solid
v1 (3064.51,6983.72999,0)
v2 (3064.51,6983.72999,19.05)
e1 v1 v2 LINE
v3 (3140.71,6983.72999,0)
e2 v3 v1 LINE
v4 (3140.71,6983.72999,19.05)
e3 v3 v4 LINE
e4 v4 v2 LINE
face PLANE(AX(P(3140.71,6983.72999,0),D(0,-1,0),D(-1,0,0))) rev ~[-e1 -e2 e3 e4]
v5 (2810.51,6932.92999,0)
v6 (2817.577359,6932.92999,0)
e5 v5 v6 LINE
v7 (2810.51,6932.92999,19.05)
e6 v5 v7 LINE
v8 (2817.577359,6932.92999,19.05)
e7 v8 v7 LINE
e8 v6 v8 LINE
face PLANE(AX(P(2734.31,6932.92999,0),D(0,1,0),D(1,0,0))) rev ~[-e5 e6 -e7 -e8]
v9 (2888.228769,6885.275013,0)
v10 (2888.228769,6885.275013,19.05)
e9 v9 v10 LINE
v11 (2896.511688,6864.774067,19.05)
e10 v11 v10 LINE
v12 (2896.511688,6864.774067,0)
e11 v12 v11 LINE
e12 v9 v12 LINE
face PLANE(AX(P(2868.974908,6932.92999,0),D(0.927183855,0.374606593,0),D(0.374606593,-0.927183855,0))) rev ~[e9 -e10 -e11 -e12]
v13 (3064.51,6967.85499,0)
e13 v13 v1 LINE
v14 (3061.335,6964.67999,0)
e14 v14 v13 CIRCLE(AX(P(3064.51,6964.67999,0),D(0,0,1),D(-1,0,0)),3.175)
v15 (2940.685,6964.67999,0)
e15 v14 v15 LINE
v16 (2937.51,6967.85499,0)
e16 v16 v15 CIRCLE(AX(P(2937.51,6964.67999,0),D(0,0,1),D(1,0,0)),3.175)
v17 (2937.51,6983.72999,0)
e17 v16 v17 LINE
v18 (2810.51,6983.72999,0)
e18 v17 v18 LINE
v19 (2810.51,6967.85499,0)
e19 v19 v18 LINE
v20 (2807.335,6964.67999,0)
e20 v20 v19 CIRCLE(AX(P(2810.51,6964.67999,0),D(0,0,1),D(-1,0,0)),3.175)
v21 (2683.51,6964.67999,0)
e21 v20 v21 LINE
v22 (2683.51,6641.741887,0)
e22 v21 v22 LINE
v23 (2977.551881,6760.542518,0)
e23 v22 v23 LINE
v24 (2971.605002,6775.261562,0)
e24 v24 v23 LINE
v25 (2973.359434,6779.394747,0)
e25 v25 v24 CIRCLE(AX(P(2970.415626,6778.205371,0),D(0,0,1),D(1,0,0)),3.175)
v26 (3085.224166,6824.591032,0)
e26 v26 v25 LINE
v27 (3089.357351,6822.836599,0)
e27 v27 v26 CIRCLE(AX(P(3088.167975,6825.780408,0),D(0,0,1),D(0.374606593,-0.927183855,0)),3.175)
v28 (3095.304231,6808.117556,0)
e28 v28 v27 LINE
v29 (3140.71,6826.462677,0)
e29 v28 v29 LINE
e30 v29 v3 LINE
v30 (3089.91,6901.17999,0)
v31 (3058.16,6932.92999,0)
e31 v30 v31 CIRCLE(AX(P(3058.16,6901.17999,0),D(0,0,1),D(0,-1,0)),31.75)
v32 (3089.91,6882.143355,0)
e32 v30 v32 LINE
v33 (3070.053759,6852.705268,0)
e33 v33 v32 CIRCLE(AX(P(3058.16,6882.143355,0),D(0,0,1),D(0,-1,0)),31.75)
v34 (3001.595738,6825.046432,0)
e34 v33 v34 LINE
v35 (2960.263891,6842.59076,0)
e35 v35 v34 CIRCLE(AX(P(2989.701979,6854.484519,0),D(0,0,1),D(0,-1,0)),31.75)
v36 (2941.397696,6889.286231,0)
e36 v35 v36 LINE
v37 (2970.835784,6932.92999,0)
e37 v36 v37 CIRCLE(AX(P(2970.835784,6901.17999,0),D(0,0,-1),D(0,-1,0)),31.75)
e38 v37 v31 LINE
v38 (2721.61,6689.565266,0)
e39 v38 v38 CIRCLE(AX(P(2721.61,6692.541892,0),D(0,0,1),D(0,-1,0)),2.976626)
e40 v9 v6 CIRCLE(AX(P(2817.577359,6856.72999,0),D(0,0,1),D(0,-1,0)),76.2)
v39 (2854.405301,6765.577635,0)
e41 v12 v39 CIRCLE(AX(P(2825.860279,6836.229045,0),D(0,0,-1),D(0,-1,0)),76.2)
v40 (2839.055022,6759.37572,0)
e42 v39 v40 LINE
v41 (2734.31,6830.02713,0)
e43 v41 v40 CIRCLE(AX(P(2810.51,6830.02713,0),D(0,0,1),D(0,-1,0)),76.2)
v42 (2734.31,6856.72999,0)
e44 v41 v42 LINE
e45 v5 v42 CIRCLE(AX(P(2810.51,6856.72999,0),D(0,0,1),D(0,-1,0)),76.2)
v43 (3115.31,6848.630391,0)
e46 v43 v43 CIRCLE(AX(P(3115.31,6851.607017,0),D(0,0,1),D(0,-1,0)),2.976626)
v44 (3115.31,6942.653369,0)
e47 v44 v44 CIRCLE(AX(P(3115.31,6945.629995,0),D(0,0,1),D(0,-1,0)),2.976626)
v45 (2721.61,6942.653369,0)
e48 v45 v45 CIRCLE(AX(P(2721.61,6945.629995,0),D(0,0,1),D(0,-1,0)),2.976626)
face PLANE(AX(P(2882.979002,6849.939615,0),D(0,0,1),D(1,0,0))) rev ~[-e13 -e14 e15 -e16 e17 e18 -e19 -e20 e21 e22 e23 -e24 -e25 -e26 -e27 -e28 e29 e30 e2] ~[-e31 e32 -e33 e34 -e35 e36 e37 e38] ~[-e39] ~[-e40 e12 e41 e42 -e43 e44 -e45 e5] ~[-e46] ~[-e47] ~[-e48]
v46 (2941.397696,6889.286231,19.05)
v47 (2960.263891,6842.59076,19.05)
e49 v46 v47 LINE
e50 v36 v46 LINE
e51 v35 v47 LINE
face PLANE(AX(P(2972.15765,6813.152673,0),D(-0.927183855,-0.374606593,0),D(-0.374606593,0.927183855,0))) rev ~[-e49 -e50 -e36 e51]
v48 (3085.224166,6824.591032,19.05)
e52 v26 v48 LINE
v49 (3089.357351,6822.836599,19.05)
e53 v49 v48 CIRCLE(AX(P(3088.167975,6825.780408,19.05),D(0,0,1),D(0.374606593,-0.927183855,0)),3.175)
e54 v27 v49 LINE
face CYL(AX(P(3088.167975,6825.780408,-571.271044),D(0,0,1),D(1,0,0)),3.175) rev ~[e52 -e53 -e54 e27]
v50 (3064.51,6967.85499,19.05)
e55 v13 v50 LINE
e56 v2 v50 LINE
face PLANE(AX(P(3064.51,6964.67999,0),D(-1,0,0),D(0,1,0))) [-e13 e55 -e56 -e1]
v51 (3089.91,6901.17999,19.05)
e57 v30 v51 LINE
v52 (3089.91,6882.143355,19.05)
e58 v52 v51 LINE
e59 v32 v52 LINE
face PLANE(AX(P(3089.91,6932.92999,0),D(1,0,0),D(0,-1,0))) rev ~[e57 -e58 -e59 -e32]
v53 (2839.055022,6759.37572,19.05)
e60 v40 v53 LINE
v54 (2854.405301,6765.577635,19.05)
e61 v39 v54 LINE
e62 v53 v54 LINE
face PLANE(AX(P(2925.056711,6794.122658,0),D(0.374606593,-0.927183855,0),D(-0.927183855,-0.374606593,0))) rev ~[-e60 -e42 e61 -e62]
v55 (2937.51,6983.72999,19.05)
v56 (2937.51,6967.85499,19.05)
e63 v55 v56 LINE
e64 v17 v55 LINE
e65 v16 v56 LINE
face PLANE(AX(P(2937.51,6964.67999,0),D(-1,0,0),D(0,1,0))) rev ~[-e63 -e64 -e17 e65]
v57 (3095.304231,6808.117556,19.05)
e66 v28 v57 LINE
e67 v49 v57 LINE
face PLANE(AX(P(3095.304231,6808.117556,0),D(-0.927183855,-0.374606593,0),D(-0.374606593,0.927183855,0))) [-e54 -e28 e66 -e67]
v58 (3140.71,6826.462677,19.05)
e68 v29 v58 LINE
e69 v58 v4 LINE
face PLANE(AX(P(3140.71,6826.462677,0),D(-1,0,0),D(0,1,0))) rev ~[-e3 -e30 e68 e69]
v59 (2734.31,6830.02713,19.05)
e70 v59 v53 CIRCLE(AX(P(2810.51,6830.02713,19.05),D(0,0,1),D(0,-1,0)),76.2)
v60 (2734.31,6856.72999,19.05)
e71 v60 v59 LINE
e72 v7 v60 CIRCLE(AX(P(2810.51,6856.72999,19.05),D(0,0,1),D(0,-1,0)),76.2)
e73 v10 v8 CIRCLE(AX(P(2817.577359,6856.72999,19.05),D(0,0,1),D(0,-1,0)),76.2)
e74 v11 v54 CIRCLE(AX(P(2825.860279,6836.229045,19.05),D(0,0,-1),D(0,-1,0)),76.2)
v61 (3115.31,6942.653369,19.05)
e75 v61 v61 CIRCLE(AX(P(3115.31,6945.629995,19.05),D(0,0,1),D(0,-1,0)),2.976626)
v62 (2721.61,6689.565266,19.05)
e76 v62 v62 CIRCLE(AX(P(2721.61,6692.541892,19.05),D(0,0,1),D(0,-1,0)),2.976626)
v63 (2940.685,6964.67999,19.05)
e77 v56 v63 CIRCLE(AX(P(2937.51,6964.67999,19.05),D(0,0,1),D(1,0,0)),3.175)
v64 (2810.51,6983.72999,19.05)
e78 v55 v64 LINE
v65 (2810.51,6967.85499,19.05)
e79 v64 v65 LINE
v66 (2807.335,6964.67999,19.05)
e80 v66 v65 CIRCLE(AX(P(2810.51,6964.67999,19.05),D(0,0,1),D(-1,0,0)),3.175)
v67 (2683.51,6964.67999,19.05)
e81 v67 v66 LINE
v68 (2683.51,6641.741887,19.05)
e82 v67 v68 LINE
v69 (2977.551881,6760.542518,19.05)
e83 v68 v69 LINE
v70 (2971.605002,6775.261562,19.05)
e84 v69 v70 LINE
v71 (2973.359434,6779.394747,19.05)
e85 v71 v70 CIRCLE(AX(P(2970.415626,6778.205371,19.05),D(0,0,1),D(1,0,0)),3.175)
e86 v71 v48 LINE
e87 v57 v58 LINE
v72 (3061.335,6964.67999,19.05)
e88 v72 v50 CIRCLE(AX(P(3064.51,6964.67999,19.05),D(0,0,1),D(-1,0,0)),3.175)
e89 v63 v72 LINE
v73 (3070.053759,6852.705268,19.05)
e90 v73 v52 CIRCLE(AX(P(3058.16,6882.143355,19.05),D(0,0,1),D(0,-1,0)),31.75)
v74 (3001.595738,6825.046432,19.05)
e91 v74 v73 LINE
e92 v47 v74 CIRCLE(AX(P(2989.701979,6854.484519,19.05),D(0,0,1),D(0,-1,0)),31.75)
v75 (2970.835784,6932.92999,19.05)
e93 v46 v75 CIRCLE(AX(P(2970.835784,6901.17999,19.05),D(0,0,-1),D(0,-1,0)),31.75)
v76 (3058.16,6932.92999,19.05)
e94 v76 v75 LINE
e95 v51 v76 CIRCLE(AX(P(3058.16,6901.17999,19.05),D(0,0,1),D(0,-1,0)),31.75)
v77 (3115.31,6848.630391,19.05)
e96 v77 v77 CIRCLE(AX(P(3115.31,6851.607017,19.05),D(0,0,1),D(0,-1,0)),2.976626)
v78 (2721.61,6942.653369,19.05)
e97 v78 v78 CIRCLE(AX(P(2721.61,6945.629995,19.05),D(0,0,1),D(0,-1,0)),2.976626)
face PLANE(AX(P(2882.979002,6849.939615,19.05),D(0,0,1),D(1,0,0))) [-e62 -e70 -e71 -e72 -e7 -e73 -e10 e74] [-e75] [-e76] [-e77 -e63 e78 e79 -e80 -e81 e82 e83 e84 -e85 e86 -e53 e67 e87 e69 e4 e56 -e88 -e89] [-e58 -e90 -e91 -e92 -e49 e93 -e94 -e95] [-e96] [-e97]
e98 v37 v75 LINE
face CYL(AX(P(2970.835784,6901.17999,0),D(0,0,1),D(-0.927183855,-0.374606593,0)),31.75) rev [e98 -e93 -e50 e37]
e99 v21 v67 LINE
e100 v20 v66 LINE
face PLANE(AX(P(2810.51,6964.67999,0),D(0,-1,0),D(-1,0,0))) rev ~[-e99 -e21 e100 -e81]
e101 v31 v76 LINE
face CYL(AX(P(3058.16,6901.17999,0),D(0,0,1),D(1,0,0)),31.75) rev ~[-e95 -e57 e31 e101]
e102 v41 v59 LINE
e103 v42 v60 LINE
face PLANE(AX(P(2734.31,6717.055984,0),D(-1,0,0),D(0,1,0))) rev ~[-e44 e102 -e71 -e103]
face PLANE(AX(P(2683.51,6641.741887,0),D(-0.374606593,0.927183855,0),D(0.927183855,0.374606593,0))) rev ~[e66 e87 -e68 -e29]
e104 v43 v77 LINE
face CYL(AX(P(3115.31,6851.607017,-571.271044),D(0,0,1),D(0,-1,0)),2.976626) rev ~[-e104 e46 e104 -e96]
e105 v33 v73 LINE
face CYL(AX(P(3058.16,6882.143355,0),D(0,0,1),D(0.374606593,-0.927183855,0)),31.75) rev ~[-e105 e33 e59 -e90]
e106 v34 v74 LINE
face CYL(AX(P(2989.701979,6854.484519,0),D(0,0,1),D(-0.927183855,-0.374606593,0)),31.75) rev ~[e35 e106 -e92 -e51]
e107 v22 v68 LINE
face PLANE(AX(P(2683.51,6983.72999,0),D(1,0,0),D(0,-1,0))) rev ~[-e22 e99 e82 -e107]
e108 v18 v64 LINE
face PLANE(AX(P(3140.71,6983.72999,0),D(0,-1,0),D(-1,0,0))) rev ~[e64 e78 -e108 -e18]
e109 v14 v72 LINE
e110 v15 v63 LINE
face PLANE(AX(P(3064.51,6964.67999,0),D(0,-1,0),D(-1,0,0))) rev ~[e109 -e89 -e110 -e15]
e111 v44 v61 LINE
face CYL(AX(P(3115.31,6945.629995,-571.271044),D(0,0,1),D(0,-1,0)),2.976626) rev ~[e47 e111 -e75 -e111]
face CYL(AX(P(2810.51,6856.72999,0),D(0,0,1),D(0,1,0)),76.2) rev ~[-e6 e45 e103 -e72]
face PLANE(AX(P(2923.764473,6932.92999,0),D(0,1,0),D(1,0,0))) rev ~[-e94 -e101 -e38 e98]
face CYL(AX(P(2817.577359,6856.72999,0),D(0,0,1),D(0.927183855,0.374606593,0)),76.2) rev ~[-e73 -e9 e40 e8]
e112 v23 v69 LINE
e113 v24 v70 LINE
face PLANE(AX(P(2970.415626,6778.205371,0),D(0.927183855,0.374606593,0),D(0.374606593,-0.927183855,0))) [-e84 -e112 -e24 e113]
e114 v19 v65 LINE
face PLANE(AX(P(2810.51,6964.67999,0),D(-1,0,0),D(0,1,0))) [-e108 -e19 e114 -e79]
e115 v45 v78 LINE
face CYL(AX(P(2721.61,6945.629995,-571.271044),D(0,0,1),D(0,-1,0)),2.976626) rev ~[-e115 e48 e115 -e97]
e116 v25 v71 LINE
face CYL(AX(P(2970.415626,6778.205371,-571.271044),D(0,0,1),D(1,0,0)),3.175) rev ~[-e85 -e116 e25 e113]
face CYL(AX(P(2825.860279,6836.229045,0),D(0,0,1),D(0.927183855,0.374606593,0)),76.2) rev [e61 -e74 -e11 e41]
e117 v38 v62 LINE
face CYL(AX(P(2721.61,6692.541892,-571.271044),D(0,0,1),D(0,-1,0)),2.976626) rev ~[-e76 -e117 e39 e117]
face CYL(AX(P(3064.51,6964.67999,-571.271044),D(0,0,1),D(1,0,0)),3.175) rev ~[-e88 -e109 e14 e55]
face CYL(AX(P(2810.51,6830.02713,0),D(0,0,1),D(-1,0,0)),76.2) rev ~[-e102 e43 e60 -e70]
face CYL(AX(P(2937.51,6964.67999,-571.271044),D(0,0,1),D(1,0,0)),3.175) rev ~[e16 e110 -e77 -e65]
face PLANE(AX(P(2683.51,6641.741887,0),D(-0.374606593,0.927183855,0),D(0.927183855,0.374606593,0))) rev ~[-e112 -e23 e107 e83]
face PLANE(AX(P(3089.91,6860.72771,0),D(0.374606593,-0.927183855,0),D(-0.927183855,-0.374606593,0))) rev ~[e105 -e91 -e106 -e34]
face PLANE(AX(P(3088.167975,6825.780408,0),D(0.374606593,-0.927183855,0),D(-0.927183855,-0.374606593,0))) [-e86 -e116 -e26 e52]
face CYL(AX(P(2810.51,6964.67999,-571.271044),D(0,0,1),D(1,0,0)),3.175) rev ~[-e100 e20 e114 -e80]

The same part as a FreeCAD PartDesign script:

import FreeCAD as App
import Part
import Sketcher

V = App.Vector
Q = App.Units.Quantity


def edges_at(feature, points):
    """Names of the edges that pass closest to the given points."""
    edges = feature.Shape.Edges
    near = lambda p: min(range(len(edges)), key=lambda i: edges[i].distToShape(Part.Vertex(*p))[0])
    return sorted({f"Edge{near(p) + 1}" for p in points})


def add_polygon(sketch, points):
    """Adds a closed chain of lines whose ends are joined by coincident constraints."""
    first, n = sketch.GeometryCount, len(points)
    for a, b in zip(points, points[1:] + points[:1]):
        sketch.addGeometry(Part.LineSegment(App.Vector(*a, 0), App.Vector(*b, 0)), False)
    for i in range(n):
        sketch.addConstraint(Sketcher.Constraint("Coincident", first + i, 2, first + (i + 1) % n, 1))

doc = App.newDocument("Part")
body = doc.addObject("PartDesign::Body", "Body")

sketch1 = body.newObject("Sketcher::SketchObject", "Sketch")
sketch1.AttachmentSupport = (doc.getObject("XY_Plane"), [""])
sketch1.MapMode = "FlatFace"
add_polygon(sketch1, [(3140.71, 6983.72999), (2683.51, 6983.72999), (2683.51, 6641.741887), (3140.71, 6826.462677)])
sketch1.addConstraint([
    Sketcher.Constraint("Horizontal", 0),
    Sketcher.Constraint("Vertical", 1),
    Sketcher.Constraint("Vertical", 3),
    Sketcher.Constraint("DistanceX", 0, 2, 0, 1, Q("18 in")),
    Sketcher.Constraint("Angle", 2, Q("22 deg")),
    Sketcher.Constraint("DistanceX", -1, 1, 0, 2, Q("105.65 in")),
    Sketcher.Constraint("DistanceY", 1, 2, 1, 1, 341.988103),
    Sketcher.Constraint("DistanceY", -1, 1, 0, 2, 6983.72999),
])
pad1 = body.newObject("PartDesign::Pad", "Pad")
pad1.Profile = sketch1
pad1.Length = Q("0.75 in")

sketch2 = body.newObject("Sketcher::SketchObject", "Sketch001")
sketch2.AttachmentSupport = (doc.getObject("XY_Plane"), [""])
sketch2.MapMode = "FlatFace"
add_polygon(sketch2, [(2923.764473, 6932.92999), (3089.91, 6932.92999), (3089.91, 6860.72771), (2972.15765, 6813.152673)])
add_polygon(sketch2, [(2925.056711, 6794.122658), (2734.31, 6717.055984), (2734.31, 6932.92999), (2868.974908, 6932.92999)])
sketch2.addConstraint([
    Sketcher.Constraint("Horizontal", 0),
    Sketcher.Constraint("Vertical", 1),
    Sketcher.Constraint("Vertical", 5),
    Sketcher.Constraint("Horizontal", 6),
    Sketcher.Constraint("Perpendicular", 2, 3),
    Sketcher.Constraint("Perpendicular", 3, 4),
    Sketcher.Constraint("Perpendicular", 4, 7),
    Sketcher.Constraint("Horizontal", 3, 2, 5, 2),
    Sketcher.Constraint("Distance", 2, Q("5 in")),
    Sketcher.Constraint("Angle", 2, Q("-158 deg")),
    Sketcher.Constraint("DistanceX", 4, 2, 1, 2, Q("14 in")),
    Sketcher.Constraint("DistanceX", -1, 1, 0, 2, Q("121.65 in")),
    Sketcher.Constraint("Distance", 3, 129.183998),
    Sketcher.Constraint("Distance", 7, 149.708531),
    Sketcher.Constraint("DistanceX", 6, 1, 6, 2, 134.664908),
    Sketcher.Constraint("DistanceY", -1, 1, 0, 2, 6932.92999),
])
pocket1 = body.newObject("PartDesign::Pocket", "Pocket")
pocket1.Profile = sketch2
pocket1.Type = "ThroughAll"
pocket1.Reversed = True
doc.recompute()

fillet = body.newObject("PartDesign::Fillet", "Fillet")
fillet.Base = (pocket1, edges_at(pocket1, [
    (2925.057, 6794.123, 9.525),
    (2868.975, 6932.93, 9.525),
    (2734.31, 6932.93, 9.525),
    (2734.31, 6717.056, 9.525),
]))
fillet.Radius = Q("3 in")
doc.recompute()

fillet2 = body.newObject("PartDesign::Fillet", "Fillet001")
fillet2.Base = (fillet, edges_at(fillet, [
    (2972.158, 6813.153, 9.525),
    (3089.91, 6860.728, 9.525),
    (3089.91, 6932.93, 9.525),
    (2923.764, 6932.93, 9.525),
]))
fillet2.Radius = Q("1.25 in")

sketch3 = body.newObject("Sketcher::SketchObject", "Sketch002")
sketch3.AttachmentSupport = (doc.getObject("XY_Plane"), [""])
sketch3.MapMode = "FlatFace"
add_polygon(sketch3, [(2810.51, 6983.72999), (2810.51, 6964.67999), (2683.51, 6964.67999), (2683.51, 6983.72999)])
add_polygon(sketch3, [(3064.51, 6983.72999), (3064.51, 6964.67999), (2937.51, 6964.67999), (2937.51, 6983.72999)])
add_polygon(sketch3, [(3095.304231, 6808.117556), (2977.551881, 6760.542518), (2970.415626, 6778.205371), (3088.167975, 6825.780408)])
sketch3.addConstraint([
    Sketcher.Constraint("Vertical", 0),
    Sketcher.Constraint("Horizontal", 1),
    Sketcher.Constraint("Vertical", 2),
    Sketcher.Constraint("Horizontal", 3),
    Sketcher.Constraint("Vertical", 4),
    Sketcher.Constraint("Horizontal", 5),
    Sketcher.Constraint("Vertical", 6),
    Sketcher.Constraint("Horizontal", 7),
    Sketcher.Constraint("Perpendicular", 8, 9),
    Sketcher.Constraint("Perpendicular", 9, 10),
    Sketcher.Constraint("Perpendicular", 10, 11),
    Sketcher.Constraint("Horizontal", 1, 2, 4, 2),
    Sketcher.Constraint("Horizontal", 3, 2, 6, 2),
    Sketcher.Constraint("Equal", 3, 5),
    Sketcher.Constraint("DistanceX", 1, 2, 1, 1, Q("5 in")),
    Sketcher.Constraint("Distance", 8, Q("5 in")),
    Sketcher.Constraint("Angle", 8, Q("-158 deg")),
    Sketcher.Constraint("DistanceX", 0, 2, 4, 2, Q("10 in")),
    Sketcher.Constraint("DistanceY", 0, 2, 0, 1, Q("0.75 in")),
    Sketcher.Constraint("Distance", 9, Q("0.75 in")),
    Sketcher.Constraint("DistanceX", -1, 1, 0, 2, Q("110.65 in")),
    Sketcher.Constraint("DistanceY", -1, 1, 0, 2, 6964.67999),
    Sketcher.Constraint("DistanceX", -1, 1, 8, 2, 2977.551881),
    Sketcher.Constraint("DistanceY", -1, 1, 8, 2, 6760.542518),
])
pocket2 = body.newObject("PartDesign::Pocket", "Pocket001")
pocket2.Profile = sketch3
pocket2.Type = "ThroughAll"
pocket2.Reversed = True

sketch4 = body.newObject("Sketcher::SketchObject", "Sketch003")
sketch4.AttachmentSupport = (doc.getObject("XY_Plane"), [""])
sketch4.MapMode = "FlatFace"
sketch4.addGeometry([
    Part.Circle(V(3088.167975, 6825.780408, 0), V(0, 0, 1), 3.175),
    Part.Circle(V(2970.415626, 6778.205371, 0), V(0, 0, 1), 3.175),
    Part.Circle(V(2937.51, 6964.67999, 0), V(0, 0, 1), 3.175),
    Part.Circle(V(3064.51, 6964.67999, 0), V(0, 0, 1), 3.175),
    Part.Circle(V(2810.51, 6964.67999, 0), V(0, 0, 1), 3.175),
], False)
sketch4.addConstraint([
    Sketcher.Constraint("Equal", 0, 1),
    Sketcher.Constraint("Equal", 1, 2),
    Sketcher.Constraint("Equal", 2, 3),
    Sketcher.Constraint("Equal", 3, 4),
    Sketcher.Constraint("Horizontal", 2, 3, 3, 3),
    Sketcher.Constraint("Horizontal", 3, 3, 4, 3),
    Sketcher.Constraint("Diameter", 0, Q("0.25 in")),
    Sketcher.Constraint("DistanceX", 2, 3, 3, 3, Q("5 in")),
    Sketcher.Constraint("DistanceX", 4, 3, 2, 3, Q("5 in")),
    Sketcher.Constraint("DistanceX", -1, 1, 2, 3, Q("115.65 in")),
    Sketcher.Constraint("DistanceY", -1, 1, 0, 3, 6825.780408),
    Sketcher.Constraint("DistanceY", -1, 1, 1, 3, 6778.205371),
    Sketcher.Constraint("DistanceY", -1, 1, 2, 3, 6964.67999),
    Sketcher.Constraint("DistanceX", 1, 3, 0, 3, 117.75235),
    Sketcher.Constraint("DistanceX", -1, 1, 0, 3, 3088.167975),
])
doc.recompute()
hole = body.newObject("PartDesign::Hole", "Hole")
hole.Profile = sketch4
hole.ThreadType = "None"
hole.Diameter = Q("0.25 in")
hole.DepthType = "ThroughAll"
hole.Reversed = True

sketch5 = body.newObject("Sketcher::SketchObject", "Sketch004")
sketch5.AttachmentSupport = (doc.getObject("XY_Plane"), [""])
sketch5.MapMode = "FlatFace"
sketch5.addGeometry([
    Part.Circle(V(2721.61, 6692.541892, 0), V(0, 0, 1), 2.976626),
    Part.Circle(V(2721.61, 6945.629995, 0), V(0, 0, 1), 2.976626),
    Part.Circle(V(3115.31, 6945.629995, 0), V(0, 0, 1), 2.976626),
    Part.Circle(V(3115.31, 6851.607017, 0), V(0, 0, 1), 2.976626),
], False)
sketch5.addConstraint([
    Sketcher.Constraint("Equal", 0, 1),
    Sketcher.Constraint("Equal", 1, 2),
    Sketcher.Constraint("Equal", 2, 3),
    Sketcher.Constraint("Horizontal", 1, 3, 2, 3),
    Sketcher.Constraint("Vertical", 0, 3, 1, 3),
    Sketcher.Constraint("Vertical", 2, 3, 3, 3),
    Sketcher.Constraint("DistanceX", 1, 3, 2, 3, Q("15.5 in")),
    Sketcher.Constraint("DistanceX", -1, 1, 0, 3, Q("107.15 in")),
    Sketcher.Constraint("DistanceY", -1, 1, 1, 3, Q("273.4499998 in")),
    Sketcher.Constraint("Diameter", 0, 5.953252),
    Sketcher.Constraint("DistanceY", -1, 1, 0, 3, 6692.541892),
    Sketcher.Constraint("DistanceY", 3, 3, 2, 3, 94.022978),
])
doc.recompute()
hole2 = body.newObject("PartDesign::Hole", "Hole001")
hole2.Profile = sketch5
hole2.ThreadType = "None"
hole2.Diameter = 5.953252
hole2.DepthType = "ThroughAll"
hole2.Reversed = True

doc.recompute()
